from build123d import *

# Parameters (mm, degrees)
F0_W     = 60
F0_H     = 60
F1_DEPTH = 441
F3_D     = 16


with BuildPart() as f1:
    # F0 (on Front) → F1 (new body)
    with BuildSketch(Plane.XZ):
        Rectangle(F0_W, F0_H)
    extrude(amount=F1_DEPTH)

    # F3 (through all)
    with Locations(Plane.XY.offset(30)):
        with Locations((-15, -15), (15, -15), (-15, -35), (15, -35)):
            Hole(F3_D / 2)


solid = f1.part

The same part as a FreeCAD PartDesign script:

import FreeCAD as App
import Part
import Sketcher

V = App.Vector
Q = App.Units.Quantity

doc = App.newDocument("Part")
body = doc.addObject("PartDesign::Body", "Body")

# Sketch on XZ plane
sketch1 = body.newObject("Sketcher::SketchObject", "Sketch")
sketch1.AttachmentSupport = (doc.getObject("XZ_Plane"), [""])
sketch1.MapMode = "FlatFace"
sketch1.addGeometry([
    Part.LineSegment(V(-30, 30, 0), V(-30, -30, 0)),
    Part.LineSegment(V(-30, -30, 0), V(30, -30, 0)),
    Part.LineSegment(V(30, -30, 0), V(30, 30, 0)),
    Part.LineSegment(V(30, 30, 0), V(-30, 30, 0)),
], False)
sketch1.addConstraint([
    Sketcher.Constraint("Coincident", 0, 2, 1, 1),
    Sketcher.Constraint("Coincident", 1, 2, 2, 1),
    Sketcher.Constraint("Coincident", 2, 2, 3, 1),
    Sketcher.Constraint("Coincident", 3, 2, 0, 1),
    Sketcher.Constraint("Vertical", 0),
    Sketcher.Constraint("Horizontal", 1),
    Sketcher.Constraint("Vertical", 2),
    Sketcher.Constraint("Horizontal", 3),
    Sketcher.Constraint("Symmetric", 0, 2, 2, 2, -1, 1),
    Sketcher.Constraint("Equal", 3, 0),
    Sketcher.Constraint("DistanceX", 1, 1, 1, 2, Q("60 mm")),
])
pad1 = body.newObject("PartDesign::Pad", "Pad")
pad1.Profile = sketch1
pad1.Length = 441

# Sketch on XY plane
sketch2 = body.newObject("Sketcher::SketchObject", "Sketch001")
sketch2.AttachmentSupport = (doc.getObject("XY_Plane"), [""])
sketch2.MapMode = "FlatFace"
sketch2.AttachmentOffset = App.Placement(V(0, 0, 30), App.Rotation())
sketch2.addGeometry([
    Part.Circle(V(-15, -15, 0), V(0, 0, 1), 8),
    Part.Circle(V(15, -15, 0), V(0, 0, 1), 8),
    Part.Circle(V(-15, -35, 0), V(0, 0, 1), 8),
    Part.Circle(V(15, -35, 0), V(0, 0, 1), 8),
], False)
sketch2.addConstraint([
    Sketcher.Constraint("Equal", 0, 1),
    Sketcher.Constraint("Equal", 1, 2),
    Sketcher.Constraint("Equal", 2, 3),
    Sketcher.Constraint("Symmetric", 0, 3, 1, 3, -2),
    Sketcher.Constraint("Symmetric", 2, 3, 3, 3, -2),
    Sketcher.Constraint("Vertical", 0, 3, 2, 3),
    Sketcher.Constraint("Diameter", 0, Q("16 mm")),
    Sketcher.Constraint("DistanceX", 0, 3, -1, 1, Q("15 mm")),
    Sketcher.Constraint("DistanceY", 0, 3, -1, 1, Q("15 mm")),
    Sketcher.Constraint("DistanceY", 2, 3, -1, 1, Q("35 mm")),
])
doc.recompute()
hole = body.newObject("PartDesign::Hole", "Hole")
hole.Profile = sketch2
hole.ThreadType = "None"
hole.Diameter = 16
hole.DepthType = "ThroughAll"

doc.recompute()
